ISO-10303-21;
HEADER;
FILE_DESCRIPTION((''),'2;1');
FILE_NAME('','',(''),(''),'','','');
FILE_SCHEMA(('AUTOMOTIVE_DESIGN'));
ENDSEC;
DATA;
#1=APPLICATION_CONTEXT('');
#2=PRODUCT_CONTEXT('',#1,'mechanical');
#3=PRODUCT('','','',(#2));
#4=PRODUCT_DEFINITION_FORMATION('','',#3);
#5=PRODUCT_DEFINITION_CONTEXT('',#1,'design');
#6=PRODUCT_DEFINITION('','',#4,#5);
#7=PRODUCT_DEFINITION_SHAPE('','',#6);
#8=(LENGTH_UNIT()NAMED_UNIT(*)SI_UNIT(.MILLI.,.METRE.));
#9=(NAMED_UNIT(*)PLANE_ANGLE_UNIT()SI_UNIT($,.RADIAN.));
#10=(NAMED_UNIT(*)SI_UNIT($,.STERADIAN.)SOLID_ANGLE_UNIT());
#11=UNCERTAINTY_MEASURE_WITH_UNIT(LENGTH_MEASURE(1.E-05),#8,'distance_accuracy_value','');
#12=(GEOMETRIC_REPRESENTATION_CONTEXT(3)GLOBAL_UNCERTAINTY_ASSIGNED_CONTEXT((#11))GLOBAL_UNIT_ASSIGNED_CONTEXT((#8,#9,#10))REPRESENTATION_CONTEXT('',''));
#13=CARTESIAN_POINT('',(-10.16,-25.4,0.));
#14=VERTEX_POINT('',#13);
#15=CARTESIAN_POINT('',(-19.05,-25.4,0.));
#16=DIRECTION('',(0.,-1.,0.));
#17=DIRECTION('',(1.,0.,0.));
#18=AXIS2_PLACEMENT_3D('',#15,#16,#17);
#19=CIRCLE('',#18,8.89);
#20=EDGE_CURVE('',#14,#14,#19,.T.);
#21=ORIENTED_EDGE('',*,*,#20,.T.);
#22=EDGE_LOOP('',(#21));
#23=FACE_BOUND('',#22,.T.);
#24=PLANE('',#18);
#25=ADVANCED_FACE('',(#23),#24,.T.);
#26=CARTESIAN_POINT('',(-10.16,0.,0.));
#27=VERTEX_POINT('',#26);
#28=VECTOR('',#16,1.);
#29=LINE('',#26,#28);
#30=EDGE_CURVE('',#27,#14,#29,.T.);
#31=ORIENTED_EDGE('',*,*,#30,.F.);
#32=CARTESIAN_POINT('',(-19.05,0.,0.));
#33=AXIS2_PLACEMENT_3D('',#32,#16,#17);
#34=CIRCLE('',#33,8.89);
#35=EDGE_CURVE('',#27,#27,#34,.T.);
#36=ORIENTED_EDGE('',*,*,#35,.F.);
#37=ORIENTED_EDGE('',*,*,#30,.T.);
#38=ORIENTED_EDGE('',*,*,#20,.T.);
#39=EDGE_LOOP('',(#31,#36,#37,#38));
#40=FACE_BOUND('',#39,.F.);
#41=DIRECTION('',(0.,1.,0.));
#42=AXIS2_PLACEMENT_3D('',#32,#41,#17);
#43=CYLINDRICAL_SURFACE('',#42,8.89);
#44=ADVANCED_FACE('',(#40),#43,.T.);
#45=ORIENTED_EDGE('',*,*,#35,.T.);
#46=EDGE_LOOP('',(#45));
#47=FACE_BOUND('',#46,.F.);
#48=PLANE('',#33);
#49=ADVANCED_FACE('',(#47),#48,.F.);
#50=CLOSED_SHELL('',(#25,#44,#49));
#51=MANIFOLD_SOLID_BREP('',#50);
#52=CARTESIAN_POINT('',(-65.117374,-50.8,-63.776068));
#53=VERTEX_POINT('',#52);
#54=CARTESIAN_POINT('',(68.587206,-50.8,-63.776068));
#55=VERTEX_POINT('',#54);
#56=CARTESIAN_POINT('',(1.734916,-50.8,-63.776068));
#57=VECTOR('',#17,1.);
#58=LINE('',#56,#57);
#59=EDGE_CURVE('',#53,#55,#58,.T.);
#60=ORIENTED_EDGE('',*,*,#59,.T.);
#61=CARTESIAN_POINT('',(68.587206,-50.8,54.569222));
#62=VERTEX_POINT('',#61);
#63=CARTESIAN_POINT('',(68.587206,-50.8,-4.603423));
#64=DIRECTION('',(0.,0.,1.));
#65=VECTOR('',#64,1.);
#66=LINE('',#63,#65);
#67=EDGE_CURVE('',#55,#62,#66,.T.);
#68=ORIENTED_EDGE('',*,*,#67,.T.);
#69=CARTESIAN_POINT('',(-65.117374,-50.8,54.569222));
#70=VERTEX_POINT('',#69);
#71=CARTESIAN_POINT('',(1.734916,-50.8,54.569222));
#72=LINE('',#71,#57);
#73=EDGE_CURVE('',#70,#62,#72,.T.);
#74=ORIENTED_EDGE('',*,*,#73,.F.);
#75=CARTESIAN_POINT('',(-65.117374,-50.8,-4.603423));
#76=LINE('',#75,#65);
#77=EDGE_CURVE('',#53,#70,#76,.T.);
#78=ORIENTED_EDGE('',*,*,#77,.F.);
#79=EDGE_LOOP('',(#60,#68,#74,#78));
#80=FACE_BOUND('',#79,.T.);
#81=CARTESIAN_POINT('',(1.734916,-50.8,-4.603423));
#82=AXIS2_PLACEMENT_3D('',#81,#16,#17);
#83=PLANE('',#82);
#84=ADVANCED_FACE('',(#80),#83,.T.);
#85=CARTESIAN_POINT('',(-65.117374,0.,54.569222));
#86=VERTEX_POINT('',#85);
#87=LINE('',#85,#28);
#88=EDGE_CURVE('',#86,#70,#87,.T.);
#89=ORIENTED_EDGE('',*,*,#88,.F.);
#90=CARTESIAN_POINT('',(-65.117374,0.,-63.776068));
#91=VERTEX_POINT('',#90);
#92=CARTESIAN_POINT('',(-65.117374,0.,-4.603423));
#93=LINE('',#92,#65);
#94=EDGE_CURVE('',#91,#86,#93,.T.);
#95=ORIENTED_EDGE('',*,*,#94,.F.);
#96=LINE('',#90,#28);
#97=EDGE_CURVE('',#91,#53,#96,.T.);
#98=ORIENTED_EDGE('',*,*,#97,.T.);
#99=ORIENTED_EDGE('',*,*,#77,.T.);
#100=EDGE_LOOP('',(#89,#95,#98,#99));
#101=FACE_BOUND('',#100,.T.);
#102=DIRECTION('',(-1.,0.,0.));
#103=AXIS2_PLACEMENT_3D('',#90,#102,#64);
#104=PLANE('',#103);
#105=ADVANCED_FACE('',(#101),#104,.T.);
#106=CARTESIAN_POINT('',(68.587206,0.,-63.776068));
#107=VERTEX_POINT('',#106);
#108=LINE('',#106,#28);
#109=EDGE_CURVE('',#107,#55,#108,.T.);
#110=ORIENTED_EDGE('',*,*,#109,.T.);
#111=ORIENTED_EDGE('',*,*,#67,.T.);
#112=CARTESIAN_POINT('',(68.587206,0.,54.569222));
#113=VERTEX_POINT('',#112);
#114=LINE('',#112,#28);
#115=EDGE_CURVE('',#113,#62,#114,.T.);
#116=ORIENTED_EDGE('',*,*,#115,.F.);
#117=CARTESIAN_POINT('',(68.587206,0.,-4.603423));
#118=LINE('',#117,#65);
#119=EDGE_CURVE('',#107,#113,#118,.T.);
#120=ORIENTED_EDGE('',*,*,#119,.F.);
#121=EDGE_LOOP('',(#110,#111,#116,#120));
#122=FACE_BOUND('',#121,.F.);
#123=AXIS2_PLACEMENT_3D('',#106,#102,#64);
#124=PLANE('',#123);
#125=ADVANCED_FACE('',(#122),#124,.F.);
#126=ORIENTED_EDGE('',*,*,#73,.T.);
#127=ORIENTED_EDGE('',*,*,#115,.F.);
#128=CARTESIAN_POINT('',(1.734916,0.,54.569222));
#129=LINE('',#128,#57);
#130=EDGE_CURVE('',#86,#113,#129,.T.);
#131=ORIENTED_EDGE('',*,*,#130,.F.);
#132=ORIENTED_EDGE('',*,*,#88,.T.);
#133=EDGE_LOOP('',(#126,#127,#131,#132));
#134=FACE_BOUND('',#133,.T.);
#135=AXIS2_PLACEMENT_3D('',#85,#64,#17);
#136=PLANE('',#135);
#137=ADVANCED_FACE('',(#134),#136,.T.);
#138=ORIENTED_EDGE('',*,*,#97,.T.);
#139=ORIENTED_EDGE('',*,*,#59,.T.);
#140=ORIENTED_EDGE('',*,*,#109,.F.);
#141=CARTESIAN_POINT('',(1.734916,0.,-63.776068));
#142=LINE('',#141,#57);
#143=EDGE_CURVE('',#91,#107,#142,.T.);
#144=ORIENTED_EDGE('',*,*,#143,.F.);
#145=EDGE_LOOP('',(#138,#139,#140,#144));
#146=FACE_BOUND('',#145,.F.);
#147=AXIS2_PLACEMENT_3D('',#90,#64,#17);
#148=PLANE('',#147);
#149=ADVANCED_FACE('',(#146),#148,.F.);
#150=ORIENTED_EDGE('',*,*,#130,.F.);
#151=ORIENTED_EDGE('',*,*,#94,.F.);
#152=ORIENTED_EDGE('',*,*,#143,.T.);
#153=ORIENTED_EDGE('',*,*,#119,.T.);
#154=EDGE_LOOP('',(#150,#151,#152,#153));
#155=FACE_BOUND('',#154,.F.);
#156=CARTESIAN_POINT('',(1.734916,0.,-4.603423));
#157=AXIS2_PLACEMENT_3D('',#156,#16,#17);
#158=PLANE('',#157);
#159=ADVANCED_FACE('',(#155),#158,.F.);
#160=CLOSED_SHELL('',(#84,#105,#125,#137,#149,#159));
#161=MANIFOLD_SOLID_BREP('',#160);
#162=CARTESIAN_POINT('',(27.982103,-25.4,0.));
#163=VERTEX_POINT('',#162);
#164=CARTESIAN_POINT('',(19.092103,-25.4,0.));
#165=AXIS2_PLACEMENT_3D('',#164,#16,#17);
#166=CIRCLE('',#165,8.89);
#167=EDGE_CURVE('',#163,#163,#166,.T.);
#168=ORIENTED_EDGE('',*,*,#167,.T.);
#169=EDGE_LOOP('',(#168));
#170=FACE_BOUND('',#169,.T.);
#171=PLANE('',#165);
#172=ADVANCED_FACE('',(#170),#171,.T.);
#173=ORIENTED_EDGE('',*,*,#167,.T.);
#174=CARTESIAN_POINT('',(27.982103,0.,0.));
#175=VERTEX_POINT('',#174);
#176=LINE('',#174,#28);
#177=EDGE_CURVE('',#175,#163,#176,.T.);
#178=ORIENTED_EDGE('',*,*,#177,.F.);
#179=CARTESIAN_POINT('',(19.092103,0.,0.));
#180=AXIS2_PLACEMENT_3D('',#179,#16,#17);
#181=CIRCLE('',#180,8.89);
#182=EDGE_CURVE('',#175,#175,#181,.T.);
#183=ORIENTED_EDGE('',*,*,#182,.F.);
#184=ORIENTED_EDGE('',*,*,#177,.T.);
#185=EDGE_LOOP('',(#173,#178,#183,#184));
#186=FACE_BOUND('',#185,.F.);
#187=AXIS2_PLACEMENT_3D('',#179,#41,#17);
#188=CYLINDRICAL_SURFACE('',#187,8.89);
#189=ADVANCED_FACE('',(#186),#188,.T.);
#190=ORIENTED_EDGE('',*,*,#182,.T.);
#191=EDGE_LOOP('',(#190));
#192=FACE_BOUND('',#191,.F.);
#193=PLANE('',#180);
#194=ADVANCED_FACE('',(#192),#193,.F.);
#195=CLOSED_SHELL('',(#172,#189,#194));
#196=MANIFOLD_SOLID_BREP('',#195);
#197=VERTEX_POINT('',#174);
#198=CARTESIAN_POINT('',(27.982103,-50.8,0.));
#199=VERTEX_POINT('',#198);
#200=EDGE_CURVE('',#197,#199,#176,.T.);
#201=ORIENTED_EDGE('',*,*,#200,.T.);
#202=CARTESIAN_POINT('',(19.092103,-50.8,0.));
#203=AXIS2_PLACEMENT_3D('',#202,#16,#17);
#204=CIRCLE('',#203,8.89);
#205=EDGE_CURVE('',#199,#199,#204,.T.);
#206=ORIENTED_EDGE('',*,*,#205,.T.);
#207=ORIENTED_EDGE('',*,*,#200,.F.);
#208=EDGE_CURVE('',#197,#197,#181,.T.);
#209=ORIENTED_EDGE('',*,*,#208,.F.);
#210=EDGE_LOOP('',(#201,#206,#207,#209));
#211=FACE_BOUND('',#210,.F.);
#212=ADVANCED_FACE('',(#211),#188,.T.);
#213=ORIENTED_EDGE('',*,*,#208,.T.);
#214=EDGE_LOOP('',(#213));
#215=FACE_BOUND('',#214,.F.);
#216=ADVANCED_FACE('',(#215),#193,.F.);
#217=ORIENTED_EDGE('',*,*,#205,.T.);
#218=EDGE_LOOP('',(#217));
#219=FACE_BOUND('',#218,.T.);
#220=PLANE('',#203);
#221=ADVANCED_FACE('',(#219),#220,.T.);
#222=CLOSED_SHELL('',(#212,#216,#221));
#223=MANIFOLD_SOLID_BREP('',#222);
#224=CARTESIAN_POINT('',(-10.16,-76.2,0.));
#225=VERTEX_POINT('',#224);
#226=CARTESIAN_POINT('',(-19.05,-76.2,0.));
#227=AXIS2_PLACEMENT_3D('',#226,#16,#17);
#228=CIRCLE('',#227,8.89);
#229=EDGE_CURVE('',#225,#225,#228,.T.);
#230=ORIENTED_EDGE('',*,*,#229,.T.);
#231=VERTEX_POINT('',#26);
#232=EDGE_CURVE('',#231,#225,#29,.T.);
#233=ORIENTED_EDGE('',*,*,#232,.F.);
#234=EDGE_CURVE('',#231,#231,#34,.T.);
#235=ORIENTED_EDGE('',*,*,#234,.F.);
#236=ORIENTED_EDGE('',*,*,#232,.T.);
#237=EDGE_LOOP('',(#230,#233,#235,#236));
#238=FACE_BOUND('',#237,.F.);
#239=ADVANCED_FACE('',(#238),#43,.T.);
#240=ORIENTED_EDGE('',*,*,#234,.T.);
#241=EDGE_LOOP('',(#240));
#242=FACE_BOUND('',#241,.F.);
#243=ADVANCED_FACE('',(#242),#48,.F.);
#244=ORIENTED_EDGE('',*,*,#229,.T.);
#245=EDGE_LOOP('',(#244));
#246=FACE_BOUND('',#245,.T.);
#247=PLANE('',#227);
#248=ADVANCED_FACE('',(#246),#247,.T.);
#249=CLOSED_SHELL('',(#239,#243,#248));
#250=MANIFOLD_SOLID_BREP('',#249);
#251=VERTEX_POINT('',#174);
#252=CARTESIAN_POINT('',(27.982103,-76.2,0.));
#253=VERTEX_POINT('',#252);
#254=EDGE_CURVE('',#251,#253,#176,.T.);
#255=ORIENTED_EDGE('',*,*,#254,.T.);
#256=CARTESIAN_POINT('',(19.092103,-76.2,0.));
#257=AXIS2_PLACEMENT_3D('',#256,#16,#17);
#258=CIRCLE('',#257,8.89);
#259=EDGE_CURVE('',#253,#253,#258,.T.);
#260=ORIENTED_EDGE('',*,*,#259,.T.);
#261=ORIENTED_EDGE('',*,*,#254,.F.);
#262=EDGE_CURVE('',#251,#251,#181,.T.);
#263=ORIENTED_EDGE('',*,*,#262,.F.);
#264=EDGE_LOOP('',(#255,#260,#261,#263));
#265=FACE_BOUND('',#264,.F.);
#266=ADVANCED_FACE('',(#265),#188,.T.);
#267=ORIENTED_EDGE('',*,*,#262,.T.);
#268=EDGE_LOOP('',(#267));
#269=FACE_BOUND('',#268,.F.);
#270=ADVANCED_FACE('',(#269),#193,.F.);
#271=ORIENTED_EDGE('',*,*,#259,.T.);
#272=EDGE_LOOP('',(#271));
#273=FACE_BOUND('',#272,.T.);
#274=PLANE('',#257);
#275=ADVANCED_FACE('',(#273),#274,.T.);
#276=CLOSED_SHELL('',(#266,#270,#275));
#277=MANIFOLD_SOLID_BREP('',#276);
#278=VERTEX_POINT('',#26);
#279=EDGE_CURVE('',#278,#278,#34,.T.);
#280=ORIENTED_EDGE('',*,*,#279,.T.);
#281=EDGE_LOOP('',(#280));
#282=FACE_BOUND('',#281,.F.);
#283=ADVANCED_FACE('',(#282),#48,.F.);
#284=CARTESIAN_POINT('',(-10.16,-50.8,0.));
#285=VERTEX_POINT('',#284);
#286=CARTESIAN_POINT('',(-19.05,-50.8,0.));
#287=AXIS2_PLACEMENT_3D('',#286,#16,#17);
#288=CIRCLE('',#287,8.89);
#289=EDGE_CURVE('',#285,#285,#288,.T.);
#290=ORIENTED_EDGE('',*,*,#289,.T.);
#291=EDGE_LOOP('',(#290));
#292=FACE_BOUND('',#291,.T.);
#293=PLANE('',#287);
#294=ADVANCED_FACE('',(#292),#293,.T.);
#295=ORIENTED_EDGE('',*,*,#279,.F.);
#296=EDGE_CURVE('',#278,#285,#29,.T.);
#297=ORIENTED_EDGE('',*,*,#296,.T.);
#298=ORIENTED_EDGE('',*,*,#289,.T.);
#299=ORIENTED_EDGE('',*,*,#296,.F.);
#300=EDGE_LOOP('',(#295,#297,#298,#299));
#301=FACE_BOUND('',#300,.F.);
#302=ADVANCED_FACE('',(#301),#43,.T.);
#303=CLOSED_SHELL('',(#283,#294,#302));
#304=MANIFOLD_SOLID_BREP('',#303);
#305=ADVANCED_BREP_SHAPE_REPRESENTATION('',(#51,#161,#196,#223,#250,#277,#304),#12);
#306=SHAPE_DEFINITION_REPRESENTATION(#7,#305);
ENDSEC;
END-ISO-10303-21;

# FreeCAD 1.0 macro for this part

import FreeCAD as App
import Part
import Sketcher

V = App.Vector
Q = App.Units.Quantity

doc = App.newDocument("Part")
body = doc.addObject("PartDesign::Body", "Body")

# Sketch on XZ plane
sketch1 = doc.addObject("Sketcher::SketchObject", "Sketch")
body.addObject(sketch1)
sketch1.AttachmentSupport = (doc.XZ_Plane, [""])
sketch1.MapMode = "FlatFace"
sketch1.addGeometry(Part.Circle(V(-19, 0, 0), V(0, 0, 1), 9), False)
sketch1.addConstraint(Sketcher.Constraint("PointOnObject", 0, 3, -1))
sketch1.addConstraint(Sketcher.Constraint("Diameter", 0, Q("0.7 in")))
sketch1.addConstraint(Sketcher.Constraint("DistanceX", 0, 3, -1, 1, Q("0.75 in")))
pad1 = doc.addObject("PartDesign::Pad", "Pad")
body.addObject(pad1)
pad1.Profile = sketch1
pad1.Length = Q("2 in")
body2 = doc.addObject("PartDesign::Body", "Body001")

# Sketch on XZ plane
sketch2 = doc.addObject("Sketcher::SketchObject", "Sketch001")
body2.addObject(sketch2)
sketch2.AttachmentSupport = (doc.getObject("XZ_Plane001"), [""])
sketch2.MapMode = "FlatFace"
sketch2.addGeometry(Part.Circle(V(19, 0, 0), V(0, 0, 1), 9), False)
sketch2.addConstraint(Sketcher.Constraint("PointOnObject", 0, 3, -1))
sketch2.addConstraint(Sketcher.Constraint("Diameter", 0, Q("0.7 in")))
sketch2.addConstraint(Sketcher.Constraint("DistanceX", -1, 1, 0, 3, 19.092103))
pad2 = doc.addObject("PartDesign::Pad", "Pad001")
body2.addObject(pad2)
pad2.Profile = sketch2
pad2.Length = Q("2 in")
body3 = doc.addObject("PartDesign::Body", "Body002")

# Sketch on XZ plane
sketch3 = doc.addObject("Sketcher::SketchObject", "Sketch002")
body3.addObject(sketch3)
sketch3.AttachmentSupport = (doc.getObject("XZ_Plane002"), [""])
sketch3.MapMode = "FlatFace"
sketch3.addGeometry(Part.LineSegment(V(-65, 55, 0), V(-65, -64, 0)), False)
sketch3.addGeometry(Part.LineSegment(V(-65, -64, 0), V(69, -64, 0)), False)
sketch3.addGeometry(Part.LineSegment(V(69, -64, 0), V(69, 55, 0)), False)
sketch3.addGeometry(Part.LineSegment(V(69, 55, 0), V(-65, 55, 0)), False)
sketch3.addConstraint(Sketcher.Constraint("Coincident", 0, 2, 1, 1))
sketch3.addConstraint(Sketcher.Constraint("Coincident", 1, 2, 2, 1))
sketch3.addConstraint(Sketcher.Constraint("Coincident", 2, 2, 3, 1))
sketch3.addConstraint(Sketcher.Constraint("Coincident", 3, 2, 0, 1))
sketch3.addConstraint(Sketcher.Constraint("Vertical", 0))
sketch3.addConstraint(Sketcher.Constraint("Horizontal", 1))
sketch3.addConstraint(Sketcher.Constraint("Vertical", 2))
sketch3.addConstraint(Sketcher.Constraint("Horizontal", 3))
sketch3.addConstraint(Sketcher.Constraint("DistanceX", 1, 1, 1, 2, 133.70458))
sketch3.addConstraint(Sketcher.Constraint("DistanceY", 0, 2, 0, 1, 118.34529))
sketch3.addConstraint(Sketcher.Constraint("DistanceY", 0, 2, -1, 1, 63.776068))
sketch3.addConstraint(Sketcher.Constraint("DistanceX", 0, 2, -1, 1, 65.117374))
pad3 = doc.addObject("PartDesign::Pad", "Pad002")
body3.addObject(pad3)
pad3.Profile = sketch3
pad3.Length = Q("2 in")
body4 = doc.addObject("PartDesign::Body", "Body003")

# Sketch on XZ plane
sketch4 = doc.addObject("Sketcher::SketchObject", "Sketch003")
body4.addObject(sketch4)
sketch4.AttachmentSupport = (doc.getObject("XZ_Plane003"), [""])
sketch4.MapMode = "FlatFace"
sketch4.addGeometry(Part.Circle(V(-19, 0, 0), V(0, 0, 1), 9), False)
sketch4.addConstraint(Sketcher.Constraint("PointOnObject", 0, 3, -1))
sketch4.addConstraint(Sketcher.Constraint("Diameter", 0, Q("0.7 in")))
sketch4.addConstraint(Sketcher.Constraint("DistanceX", 0, 3, -1, 1, Q("0.75 in")))
pad4 = doc.addObject("PartDesign::Pad", "Pad003")
body4.addObject(pad4)
pad4.Profile = sketch4
pad4.Length = Q("1 in")
body5 = doc.addObject("PartDesign::Body", "Body004")

# Sketch on XZ plane
sketch5 = doc.addObject("Sketcher::SketchObject", "Sketch004")
body5.addObject(sketch5)
sketch5.AttachmentSupport = (doc.getObject("XZ_Plane004"), [""])
sketch5.MapMode = "FlatFace"
sketch5.addGeometry(Part.Circle(V(19, 0, 0), V(0, 0, 1), 9), False)
sketch5.addConstraint(Sketcher.Constraint("PointOnObject", 0, 3, -1))
sketch5.addConstraint(Sketcher.Constraint("Diameter", 0, Q("0.7 in")))
sketch5.addConstraint(Sketcher.Constraint("DistanceX", -1, 1, 0, 3, 19.092103))
pad5 = doc.addObject("PartDesign::Pad", "Pad004")
body5.addObject(pad5)
pad5.Profile = sketch5
pad5.Length = Q("1 in")
body6 = doc.addObject("PartDesign::Body", "Body005")

# Sketch on XZ plane
sketch6 = doc.addObject("Sketcher::SketchObject", "Sketch005")
body6.addObject(sketch6)
sketch6.AttachmentSupport = (doc.getObject("XZ_Plane005"), [""])
sketch6.MapMode = "FlatFace"
sketch6.addGeometry(Part.Circle(V(-19, 0, 0), V(0, 0, 1), 9), False)
sketch6.addConstraint(Sketcher.Constraint("PointOnObject", 0, 3, -1))
sketch6.addConstraint(Sketcher.Constraint("Diameter", 0, Q("0.7 in")))
sketch6.addConstraint(Sketcher.Constraint("DistanceX", 0, 3, -1, 1, Q("0.75 in")))
pad6 = doc.addObject("PartDesign::Pad", "Pad005")
body6.addObject(pad6)
pad6.Profile = sketch6
pad6.Length = Q("3 in")
body7 = doc.addObject("PartDesign::Body", "Body006")

# Sketch on XZ plane
sketch7 = doc.addObject("Sketcher::SketchObject", "Sketch006")
body7.addObject(sketch7)
sketch7.AttachmentSupport = (doc.getObject("XZ_Plane006"), [""])
sketch7.MapMode = "FlatFace"
sketch7.addGeometry(Part.Circle(V(19, 0, 0), V(0, 0, 1), 9), False)
sketch7.addConstraint(Sketcher.Constraint("PointOnObject", 0, 3, -1))
sketch7.addConstraint(Sketcher.Constraint("Diameter", 0, Q("0.7 in")))
sketch7.addConstraint(Sketcher.Constraint("DistanceX", -1, 1, 0, 3, 19.092103))
pad7 = doc.addObject("PartDesign::Pad", "Pad006")
body7.addObject(pad7)
pad7.Profile = sketch7
pad7.Length = Q("3 in")

doc.recompute()
